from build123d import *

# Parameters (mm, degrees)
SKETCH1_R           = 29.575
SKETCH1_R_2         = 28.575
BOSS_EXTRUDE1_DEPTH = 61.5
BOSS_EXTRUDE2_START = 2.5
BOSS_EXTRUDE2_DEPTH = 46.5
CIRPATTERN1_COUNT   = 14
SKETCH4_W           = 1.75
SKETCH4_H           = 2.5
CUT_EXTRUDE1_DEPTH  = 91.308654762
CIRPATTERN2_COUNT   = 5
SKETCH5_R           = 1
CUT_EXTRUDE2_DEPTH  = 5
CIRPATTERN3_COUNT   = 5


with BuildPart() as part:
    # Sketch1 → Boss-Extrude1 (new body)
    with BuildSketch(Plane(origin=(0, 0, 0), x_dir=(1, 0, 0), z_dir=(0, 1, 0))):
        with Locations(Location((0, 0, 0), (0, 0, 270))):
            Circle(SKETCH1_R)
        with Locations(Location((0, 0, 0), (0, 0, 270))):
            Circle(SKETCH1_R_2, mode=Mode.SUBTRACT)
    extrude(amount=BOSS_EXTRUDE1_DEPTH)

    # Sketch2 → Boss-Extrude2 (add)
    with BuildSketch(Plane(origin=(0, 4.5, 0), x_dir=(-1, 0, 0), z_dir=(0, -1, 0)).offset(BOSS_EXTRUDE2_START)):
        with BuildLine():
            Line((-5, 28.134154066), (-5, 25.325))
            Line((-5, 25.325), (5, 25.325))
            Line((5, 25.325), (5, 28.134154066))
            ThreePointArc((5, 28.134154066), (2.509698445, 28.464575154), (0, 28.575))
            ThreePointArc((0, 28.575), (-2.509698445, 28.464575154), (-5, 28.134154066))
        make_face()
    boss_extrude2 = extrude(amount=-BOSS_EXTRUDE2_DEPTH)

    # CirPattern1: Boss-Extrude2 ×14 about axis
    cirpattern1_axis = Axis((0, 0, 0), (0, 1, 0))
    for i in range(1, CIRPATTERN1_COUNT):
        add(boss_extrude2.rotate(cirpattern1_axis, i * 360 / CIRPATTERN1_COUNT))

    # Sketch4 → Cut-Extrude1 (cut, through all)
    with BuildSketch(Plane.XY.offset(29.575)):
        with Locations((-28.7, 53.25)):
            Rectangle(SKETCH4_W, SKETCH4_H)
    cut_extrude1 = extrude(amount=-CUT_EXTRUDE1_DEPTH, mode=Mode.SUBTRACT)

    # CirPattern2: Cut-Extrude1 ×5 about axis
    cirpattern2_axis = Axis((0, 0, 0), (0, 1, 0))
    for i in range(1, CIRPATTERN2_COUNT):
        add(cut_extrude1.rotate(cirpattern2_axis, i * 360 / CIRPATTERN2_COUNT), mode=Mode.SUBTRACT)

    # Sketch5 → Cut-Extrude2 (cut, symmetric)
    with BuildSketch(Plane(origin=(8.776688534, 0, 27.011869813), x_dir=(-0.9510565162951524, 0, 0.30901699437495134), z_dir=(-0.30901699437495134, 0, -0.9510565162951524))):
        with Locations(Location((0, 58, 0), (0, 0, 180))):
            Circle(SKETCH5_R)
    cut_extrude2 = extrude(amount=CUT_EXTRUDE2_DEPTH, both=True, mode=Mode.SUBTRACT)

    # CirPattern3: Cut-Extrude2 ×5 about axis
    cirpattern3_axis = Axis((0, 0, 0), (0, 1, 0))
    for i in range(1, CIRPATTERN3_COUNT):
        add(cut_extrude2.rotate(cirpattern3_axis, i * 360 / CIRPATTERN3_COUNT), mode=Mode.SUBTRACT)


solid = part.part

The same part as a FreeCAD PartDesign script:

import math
import FreeCAD as App
import Part
import Sketcher
Q = App.Units.Quantity


def add_polygon(sketch, points):
    """Adds a closed chain of lines whose ends are joined by coincident constraints."""
    first, n = sketch.GeometryCount, len(points)
    for a, b in zip(points, points[1:] + points[:1]):
        sketch.addGeometry(Part.LineSegment(App.Vector(*a, 0), App.Vector(*b, 0)), False)
    for i in range(n):
        sketch.addConstraint(Sketcher.Constraint("Coincident", first + i, 2, first + (i + 1) % n, 1))

doc = App.newDocument("Part")
body = doc.addObject("PartDesign::Body", "Body")

# Sketch on XZ plane
sketch1 = body.newObject("Sketcher::SketchObject", "Sketch")
sketch1.AttachmentSupport = (doc.getObject("XZ_Plane"), [""])
sketch1.MapMode = "FlatFace"
sketch1.addGeometry(Part.Circle(App.Vector(0, 0, 0), App.Vector(0, 0, 1), 29.575), False)
sketch1.addGeometry(Part.Circle(App.Vector(0, 0, 0), App.Vector(0, 0, 1), 28.575), False)
sketch1.addConstraint(Sketcher.Constraint("Coincident", 0, 3, -1, 1))
sketch1.addConstraint(Sketcher.Constraint("Coincident", 1, 3, -1, 1))
sketch1.addConstraint(Sketcher.Constraint("Diameter", 0, Q("59.15 mm")))
sketch1.addConstraint(Sketcher.Constraint("Diameter", 1, Q("57.15 mm")))
pad1 = body.newObject("PartDesign::Pad", "Pad")
pad1.Profile = sketch1
pad1.Length = 61.5
pad1.Reversed = True

# Sketch on XZ plane
sketch2 = body.newObject("Sketcher::SketchObject", "Sketch001")
sketch2.AttachmentSupport = (doc.getObject("XZ_Plane"), [""])
sketch2.MapMode = "FlatFace"
sketch2.AttachmentOffset = App.Placement(App.Vector(0, 0, -2), App.Rotation())
sketch2.addGeometry(Part.LineSegment(App.Vector(5, -28.134154, 0), App.Vector(5, -25.325, 0)), False)
sketch2.addGeometry(Part.LineSegment(App.Vector(5, -25.325, 0), App.Vector(-5, -25.325, 0)), False)
sketch2.addGeometry(Part.LineSegment(App.Vector(-5, -25.325, 0), App.Vector(-5, -28.134154, 0)), False)
sketch2.addGeometry(Part.ArcOfCircle(Part.Circle(App.Vector(0, 0, 0), App.Vector(0, 0, 1), 28.575), math.radians(-100.077385), math.radians(-90)), False)
sketch2.addGeometry(Part.ArcOfCircle(Part.Circle(App.Vector(0, 0, 0), App.Vector(0, 0, 1), 28.575), math.radians(-90), math.radians(-79.922615)), False)
sketch2.addConstraint(Sketcher.Constraint("Coincident", 0, 2, 1, 1))
sketch2.addConstraint(Sketcher.Constraint("Coincident", 1, 2, 2, 1))
sketch2.addConstraint(Sketcher.Constraint("Coincident", 2, 2, 3, 1))
sketch2.addConstraint(Sketcher.Constraint("Tangent", 3, 2, 4, 1))
sketch2.addConstraint(Sketcher.Constraint("Coincident", 4, 2, 0, 1))
sketch2.addConstraint(Sketcher.Constraint("Vertical", 0))
sketch2.addConstraint(Sketcher.Constraint("Horizontal", 1))
sketch2.addConstraint(Sketcher.Constraint("Vertical", 2))
sketch2.addConstraint(Sketcher.Constraint("Coincident", 3, 3, -1, 1))
sketch2.addConstraint(Sketcher.Constraint("Equal", 3, 4))
sketch2.addConstraint(Sketcher.Constraint("PointOnObject", 3, 2, -2))
sketch2.addConstraint(Sketcher.Constraint("Horizontal", 2, 2, 4, 2))
sketch2.addConstraint(Sketcher.Constraint("DistanceX", 1, 2, 1, 1, Q("10 mm")))
sketch2.addConstraint(Sketcher.Constraint("Radius", 3, Q("28.575 mm")))
sketch2.addConstraint(Sketcher.Constraint("DistanceY", 3, 2, 1, 2, Q("3.25 mm")))
pad2 = body.newObject("PartDesign::Pad", "Pad001")
pad2.Profile = sketch2
pad2.Length = 46.5
pad2.Reversed = True
doc.recompute()

polarpattern = body.newObject("PartDesign::PolarPattern", "PolarPattern")
polarpattern.Originals = [pad2]
polarpattern.Axis = (doc.getObject("Y_Axis"), [""])
polarpattern.Angle = 360
polarpattern.Occurrences = 14
body.Tip = polarpattern

# Sketch on XY plane
sketch3 = body.newObject("Sketcher::SketchObject", "Sketch002")
sketch3.AttachmentSupport = (doc.getObject("XY_Plane"), [""])
sketch3.MapMode = "FlatFace"
sketch3.AttachmentOffset = App.Placement(App.Vector(0, 0, 29.575), App.Rotation())
add_polygon(sketch3, [(-29.575, 54.5), (-29.575, 52), (-27.825, 52), (-27.825, 54.5)])  # lines 0-3
sketch3.addConstraint(Sketcher.Constraint("Vertical", 0))
sketch3.addConstraint(Sketcher.Constraint("Horizontal", 1))
sketch3.addConstraint(Sketcher.Constraint("Vertical", 2))
sketch3.addConstraint(Sketcher.Constraint("Horizontal", 3))
sketch3.addConstraint(Sketcher.Constraint("DistanceY", 0, 2, 0, 1, Q("2.5 mm")))
sketch3.addConstraint(Sketcher.Constraint("DistanceY", -1, 1, 0, 2, Q("52 mm")))
sketch3.addConstraint(Sketcher.Constraint("DistanceX", 1, 1, 1, 2, Q("1.75 mm")))
sketch3.addConstraint(Sketcher.Constraint("DistanceX", 0, 2, -1, 1, Q("29.575 mm")))
pocket1 = body.newObject("PartDesign::Pocket", "Pocket")
pocket1.Profile = sketch3
pocket1.Type = "ThroughAll"
doc.recompute()

polarpattern2 = body.newObject("PartDesign::PolarPattern", "PolarPattern001")
polarpattern2.Originals = [pocket1]
polarpattern2.Axis = (doc.getObject("Y_Axis"), [""])
polarpattern2.Angle = 360
polarpattern2.Occurrences = 5
body.Tip = polarpattern2

# Sketch on an angled plane
sketch4 = body.newObject("Sketcher::SketchObject", "Sketch003")
sketch4.Placement = App.Placement(App.Vector(8.776689, 0, 27.01187), App.Rotation(App.Vector(-0.951056516, 0, 0.309016994), App.Vector(0, 0.999999999, 0), App.Vector(-0.309016994, 0, -0.951056516), "ZXY"))
sketch4.addGeometry(Part.Circle(App.Vector(0, 58, 0), App.Vector(0, 0, 1), 1), False)
sketch4.addConstraint(Sketcher.Constraint("PointOnObject", 0, 3, -2))
sketch4.addConstraint(Sketcher.Constraint("Diameter", 0, Q("2 mm")))
sketch4.addConstraint(Sketcher.Constraint("DistanceY", -1, 1, 0, 3, Q("58 mm")))
pocket2 = body.newObject("PartDesign::Pocket", "Pocket001")
pocket2.Profile = sketch4
pocket2.Length = 10
pocket2.Midplane = True
doc.recompute()

polarpattern3 = body.newObject("PartDesign::PolarPattern", "PolarPattern002")
polarpattern3.Originals = [pocket2]
polarpattern3.Axis = (doc.getObject("Y_Axis"), [""])
polarpattern3.Angle = 360
polarpattern3.Occurrences = 5
body.Tip = polarpattern3

doc.recompute()
